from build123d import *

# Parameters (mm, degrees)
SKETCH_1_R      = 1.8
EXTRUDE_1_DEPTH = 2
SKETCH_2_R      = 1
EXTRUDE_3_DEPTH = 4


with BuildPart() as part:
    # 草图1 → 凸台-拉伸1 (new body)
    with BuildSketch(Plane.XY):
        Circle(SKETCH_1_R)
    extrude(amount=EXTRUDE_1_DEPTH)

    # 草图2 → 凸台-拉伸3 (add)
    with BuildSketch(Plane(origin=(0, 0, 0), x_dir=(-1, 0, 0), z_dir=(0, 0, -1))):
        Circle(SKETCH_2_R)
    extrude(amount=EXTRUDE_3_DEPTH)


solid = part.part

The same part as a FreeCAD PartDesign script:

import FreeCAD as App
import Part
import Sketcher

V = App.Vector

doc = App.newDocument("Part")
body = doc.addObject("PartDesign::Body", "Body")

# Sketch on XY plane
sketch1 = body.newObject("Sketcher::SketchObject", "Sketch")
sketch1.AttachmentSupport = (doc.getObject("XY_Plane"), [""])
sketch1.MapMode = "FlatFace"
sketch1.addGeometry(Part.Circle(V(0, 0, 0), V(0, 0, 1), 1.8), False)
sketch1.addConstraint([
    Sketcher.Constraint("Coincident", 0, 3, -1, 1),
    Sketcher.Constraint("Diameter", 0, 3.6),
])
pad1 = body.newObject("PartDesign::Pad", "Pad")
pad1.Profile = sketch1
pad1.Length = 2

# Sketch on XY plane
sketch2 = body.newObject("Sketcher::SketchObject", "Sketch001")
sketch2.AttachmentSupport = (doc.getObject("XY_Plane"), [""])
sketch2.MapMode = "FlatFace"
sketch2.addGeometry(Part.Circle(V(0, 0, 0), V(0, 0, 1), 1), False)
sketch2.addConstraint([
    Sketcher.Constraint("Coincident", 0, 3, -1, 1),
    Sketcher.Constraint("Diameter", 0, 2.0),
])
pad2 = body.newObject("PartDesign::Pad", "Pad001")
pad2.Profile = sketch2
pad2.Length = 4
pad2.Reversed = True

doc.recompute()
